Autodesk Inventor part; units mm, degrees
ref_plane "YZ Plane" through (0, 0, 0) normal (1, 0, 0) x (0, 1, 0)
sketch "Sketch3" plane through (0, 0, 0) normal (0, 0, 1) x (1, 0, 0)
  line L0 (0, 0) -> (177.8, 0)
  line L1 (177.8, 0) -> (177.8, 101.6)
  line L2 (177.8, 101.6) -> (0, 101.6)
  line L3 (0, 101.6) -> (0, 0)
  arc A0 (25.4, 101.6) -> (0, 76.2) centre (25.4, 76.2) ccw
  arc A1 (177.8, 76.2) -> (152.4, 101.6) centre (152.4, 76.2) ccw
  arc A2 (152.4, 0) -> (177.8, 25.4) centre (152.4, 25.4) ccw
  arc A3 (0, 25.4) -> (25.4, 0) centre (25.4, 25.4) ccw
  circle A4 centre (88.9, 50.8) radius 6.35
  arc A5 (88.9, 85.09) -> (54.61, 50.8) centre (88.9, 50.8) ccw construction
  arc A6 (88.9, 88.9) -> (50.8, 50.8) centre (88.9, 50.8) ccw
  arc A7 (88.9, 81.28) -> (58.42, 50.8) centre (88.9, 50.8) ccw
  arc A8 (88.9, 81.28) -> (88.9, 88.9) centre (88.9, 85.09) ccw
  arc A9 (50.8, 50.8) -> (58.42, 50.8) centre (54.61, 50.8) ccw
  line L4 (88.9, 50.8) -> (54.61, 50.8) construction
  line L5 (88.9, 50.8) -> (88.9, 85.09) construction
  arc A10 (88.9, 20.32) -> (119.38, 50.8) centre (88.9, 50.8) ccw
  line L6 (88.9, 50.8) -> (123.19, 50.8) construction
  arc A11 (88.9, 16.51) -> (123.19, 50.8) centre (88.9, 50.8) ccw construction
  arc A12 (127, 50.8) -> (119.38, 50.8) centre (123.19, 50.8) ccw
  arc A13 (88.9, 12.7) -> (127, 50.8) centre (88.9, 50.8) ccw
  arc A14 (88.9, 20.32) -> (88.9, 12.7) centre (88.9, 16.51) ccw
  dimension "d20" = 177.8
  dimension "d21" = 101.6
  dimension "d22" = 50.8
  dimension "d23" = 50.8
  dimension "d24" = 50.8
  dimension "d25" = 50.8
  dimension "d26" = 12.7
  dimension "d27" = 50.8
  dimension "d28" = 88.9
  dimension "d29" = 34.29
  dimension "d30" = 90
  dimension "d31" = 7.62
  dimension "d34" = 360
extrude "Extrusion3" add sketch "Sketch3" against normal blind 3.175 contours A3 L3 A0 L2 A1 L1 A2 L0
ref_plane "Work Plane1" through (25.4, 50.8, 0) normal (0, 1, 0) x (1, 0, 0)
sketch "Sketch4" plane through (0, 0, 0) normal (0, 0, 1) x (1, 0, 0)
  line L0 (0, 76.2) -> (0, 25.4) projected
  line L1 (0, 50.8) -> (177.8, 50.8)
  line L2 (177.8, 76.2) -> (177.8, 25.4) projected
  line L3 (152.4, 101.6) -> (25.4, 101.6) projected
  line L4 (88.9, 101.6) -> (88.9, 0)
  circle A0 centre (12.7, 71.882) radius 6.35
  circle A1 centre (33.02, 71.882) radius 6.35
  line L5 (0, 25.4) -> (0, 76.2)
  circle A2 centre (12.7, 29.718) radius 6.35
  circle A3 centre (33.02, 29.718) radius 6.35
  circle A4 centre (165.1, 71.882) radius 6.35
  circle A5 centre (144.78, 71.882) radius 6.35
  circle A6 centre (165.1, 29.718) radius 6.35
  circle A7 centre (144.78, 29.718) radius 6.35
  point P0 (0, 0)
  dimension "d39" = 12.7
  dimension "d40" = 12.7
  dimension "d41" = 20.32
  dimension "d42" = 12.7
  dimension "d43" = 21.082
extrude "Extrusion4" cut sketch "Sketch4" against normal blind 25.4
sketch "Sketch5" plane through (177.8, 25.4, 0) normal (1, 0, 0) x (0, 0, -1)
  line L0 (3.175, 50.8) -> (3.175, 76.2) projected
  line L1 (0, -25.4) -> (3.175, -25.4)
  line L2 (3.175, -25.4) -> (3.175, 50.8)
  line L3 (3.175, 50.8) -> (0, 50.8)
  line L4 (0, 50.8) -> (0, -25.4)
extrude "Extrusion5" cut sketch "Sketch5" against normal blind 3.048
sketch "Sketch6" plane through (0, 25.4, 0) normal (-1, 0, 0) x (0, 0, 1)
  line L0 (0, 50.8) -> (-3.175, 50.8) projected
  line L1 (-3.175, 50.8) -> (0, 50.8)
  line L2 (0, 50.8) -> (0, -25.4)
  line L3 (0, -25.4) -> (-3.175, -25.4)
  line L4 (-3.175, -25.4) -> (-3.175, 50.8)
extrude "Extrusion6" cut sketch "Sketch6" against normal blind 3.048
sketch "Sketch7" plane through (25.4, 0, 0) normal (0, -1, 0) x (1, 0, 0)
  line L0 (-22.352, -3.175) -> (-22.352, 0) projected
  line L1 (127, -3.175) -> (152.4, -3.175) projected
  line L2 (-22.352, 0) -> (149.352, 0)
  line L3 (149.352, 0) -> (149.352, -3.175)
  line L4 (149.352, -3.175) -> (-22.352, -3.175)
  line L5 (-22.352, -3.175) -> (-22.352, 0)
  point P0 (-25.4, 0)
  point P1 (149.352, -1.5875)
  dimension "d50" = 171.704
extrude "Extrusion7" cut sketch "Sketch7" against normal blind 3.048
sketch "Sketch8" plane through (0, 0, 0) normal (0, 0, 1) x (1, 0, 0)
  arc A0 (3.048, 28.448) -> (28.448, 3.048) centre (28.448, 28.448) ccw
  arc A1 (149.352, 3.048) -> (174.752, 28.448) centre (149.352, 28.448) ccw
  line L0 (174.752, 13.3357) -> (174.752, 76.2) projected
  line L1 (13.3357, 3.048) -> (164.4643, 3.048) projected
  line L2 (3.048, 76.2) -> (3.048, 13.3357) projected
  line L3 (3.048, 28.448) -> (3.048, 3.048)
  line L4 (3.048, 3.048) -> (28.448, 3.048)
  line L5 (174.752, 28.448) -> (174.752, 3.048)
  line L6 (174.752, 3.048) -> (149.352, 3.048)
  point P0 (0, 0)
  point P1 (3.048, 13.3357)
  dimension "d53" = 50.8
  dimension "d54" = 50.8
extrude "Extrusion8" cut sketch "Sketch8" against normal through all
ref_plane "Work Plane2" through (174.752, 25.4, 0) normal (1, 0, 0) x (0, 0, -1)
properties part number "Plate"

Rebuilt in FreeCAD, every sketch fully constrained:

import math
import FreeCAD as App
import Part
import Sketcher
from FreeCAD import Vector
Q = App.Units.Quantity


def add_polygon(sketch, points):
    """Adds a closed chain of lines whose ends are joined by coincident constraints."""
    first, n = sketch.GeometryCount, len(points)
    for a, b in zip(points, points[1:] + points[:1]):
        sketch.addGeometry(Part.LineSegment(App.Vector(*a, 0), App.Vector(*b, 0)), False)
    for i in range(n):
        sketch.addConstraint(Sketcher.Constraint("Coincident", first + i, 2, first + (i + 1) % n, 1))

doc = App.newDocument("Part")
body = doc.addObject("PartDesign::Body", "Body")

sketch1 = body.newObject("Sketcher::SketchObject", "Sketch")
sketch1.AttachmentSupport = (doc.getObject("XY_Plane"), [""])
sketch1.MapMode = "FlatFace"
sketch1.addGeometry([
    Part.ArcOfCircle(Part.Circle(Vector(25.4, 25.4, 0), Vector(0, 0, 1), 25.4), math.radians(180), math.radians(270)),
    Part.LineSegment(Vector(25.4, 0, 0), Vector(152.4, 0, 0)),
    Part.ArcOfCircle(Part.Circle(Vector(152.4, 25.4, 0), Vector(0, 0, 1), 25.4), math.radians(-90), math.radians(0)),
    Part.LineSegment(Vector(177.8, 25.4, 0), Vector(177.8, 76.2, 0)),
    Part.ArcOfCircle(Part.Circle(Vector(152.4, 76.2, 0), Vector(0, 0, 1), 25.4), math.radians(0), math.radians(90)),
    Part.LineSegment(Vector(152.4, 101.6, 0), Vector(25.4, 101.6, 0)),
    Part.ArcOfCircle(Part.Circle(Vector(25.4, 76.2, 0), Vector(0, 0, 1), 25.4), math.radians(90), math.radians(180)),
    Part.LineSegment(Vector(0, 76.2, 0), Vector(0, 25.4, 0)),
    Part.ArcOfCircle(Part.Circle(Vector(88.9, 16.51, 0), Vector(0, 0, 1), 3.81), math.radians(90), math.radians(270)),
    Part.ArcOfCircle(Part.Circle(Vector(88.9, 50.8, 0), Vector(0, 0, 1), 30.48), math.radians(-90), math.radians(0)),
    Part.ArcOfCircle(Part.Circle(Vector(123.19, 50.8, 0), Vector(0, 0, 1), 3.81), math.radians(0), math.radians(180)),
    Part.ArcOfCircle(Part.Circle(Vector(88.9, 50.8, 0), Vector(0, 0, 1), 38.1), math.radians(-90), math.radians(0)),
    Part.Circle(Vector(88.9, 50.8, 0), Vector(0, 0, 1), 6.35),
    Part.ArcOfCircle(Part.Circle(Vector(88.9, 50.8, 0), Vector(0, 0, 1), 38.1), math.radians(90), math.radians(180)),
    Part.ArcOfCircle(Part.Circle(Vector(88.9, 85.09, 0), Vector(0, 0, 1), 3.81), math.radians(-90), math.radians(90)),
    Part.ArcOfCircle(Part.Circle(Vector(88.9, 50.8, 0), Vector(0, 0, 1), 30.48), math.radians(90), math.radians(180)),
    Part.ArcOfCircle(Part.Circle(Vector(54.61, 50.8, 0), Vector(0, 0, 1), 3.81), math.radians(180), math.radians(360)),
], False)
sketch1.addConstraint([
    Sketcher.Constraint("Tangent", 0, 2, 1, 1),
    Sketcher.Constraint("Tangent", 1, 2, 2, 1),
    Sketcher.Constraint("Tangent", 2, 2, 3, 1),
    Sketcher.Constraint("Tangent", 3, 2, 4, 1),
    Sketcher.Constraint("Tangent", 4, 2, 5, 1),
    Sketcher.Constraint("Tangent", 5, 2, 6, 1),
    Sketcher.Constraint("Tangent", 6, 2, 7, 1),
    Sketcher.Constraint("Tangent", 7, 2, 0, 1),
    Sketcher.Constraint("Tangent", 8, 1, 9, 1),
    Sketcher.Constraint("Tangent", 9, 2, 10, 2),
    Sketcher.Constraint("Tangent", 10, 1, 11, 2),
    Sketcher.Constraint("Tangent", 11, 1, 8, 2),
    Sketcher.Constraint("Tangent", 13, 1, 14, 2),
    Sketcher.Constraint("Tangent", 14, 1, 15, 1),
    Sketcher.Constraint("Tangent", 15, 2, 16, 2),
    Sketcher.Constraint("Tangent", 16, 1, 13, 2),
    Sketcher.Constraint("Horizontal", 1),
    Sketcher.Constraint("Vertical", 3),
    Sketcher.Constraint("Horizontal", 5),
    Sketcher.Constraint("Vertical", 7),
    Sketcher.Constraint("Coincident", 11, 3, 9, 3),
    Sketcher.Constraint("Coincident", 12, 3, 9, 3),
    Sketcher.Constraint("Coincident", 13, 3, 9, 3),
    Sketcher.Constraint("Coincident", 15, 3, 9, 3),
    Sketcher.Constraint("Equal", 0, 2),
    Sketcher.Constraint("Equal", 2, 4),
    Sketcher.Constraint("Equal", 4, 6),
    Sketcher.Constraint("Equal", 11, 13),
    Sketcher.Constraint("Equal", 10, 14),
    Sketcher.Constraint("PointOnObject", 0, 2, -1),
    Sketcher.Constraint("PointOnObject", 6, 2, -2),
    Sketcher.Constraint("Horizontal", 9, 3, 10, 3),
    Sketcher.Constraint("Horizontal", 15, 3, 16, 3),
    Sketcher.Constraint("Vertical", 8, 3, 9, 3),
    Sketcher.Constraint("Vertical", 13, 3, 14, 3),
    Sketcher.Constraint("Radius", 0, Q("1 in")),
    Sketcher.Constraint("Diameter", 12, Q("0.5 in")),
    Sketcher.Constraint("DistanceY", 3, 1, 3, 2, Q("2 in")),
    Sketcher.Constraint("Radius", 8, Q("0.15 in")),
    Sketcher.Constraint("DistanceY", -1, 1, 9, 3, Q("2 in")),
    Sketcher.Constraint("DistanceX", -1, 1, 2, 2, Q("7 in")),
    Sketcher.Constraint("DistanceX", -1, 1, 16, 1, Q("2 in")),
    Sketcher.Constraint("DistanceX", -1, 1, 8, 3, Q("3.5 in")),
])
pad1 = body.newObject("PartDesign::Pad", "Pad")
pad1.Profile = sketch1
pad1.Length = Q("0.125 in")
pad1.Reversed = True

sketch2 = body.newObject("Sketcher::SketchObject", "Sketch001")
sketch2.AttachmentSupport = (doc.getObject("XY_Plane"), [""])
sketch2.MapMode = "FlatFace"
sketch2.addGeometry([
    Part.Circle(Vector(12.7, 71.882, 0), Vector(0, 0, 1), 6.35),
    Part.Circle(Vector(33.02, 71.882, 0), Vector(0, 0, 1), 6.35),
    Part.Circle(Vector(12.7, 29.718, 0), Vector(0, 0, 1), 6.35),
    Part.Circle(Vector(33.02, 29.718, 0), Vector(0, 0, 1), 6.35),
    Part.Circle(Vector(165.1, 71.882, 0), Vector(0, 0, 1), 6.35),
    Part.Circle(Vector(144.78, 71.882, 0), Vector(0, 0, 1), 6.35),
    Part.Circle(Vector(165.1, 29.718, 0), Vector(0, 0, 1), 6.35),
    Part.Circle(Vector(144.78, 29.718, 0), Vector(0, 0, 1), 6.35),
], False)
sketch2.addConstraint([
    Sketcher.Constraint("Equal", 0, 1),
    Sketcher.Constraint("Equal", 1, 2),
    Sketcher.Constraint("Equal", 2, 3),
    Sketcher.Constraint("Equal", 3, 4),
    Sketcher.Constraint("Equal", 4, 5),
    Sketcher.Constraint("Equal", 5, 6),
    Sketcher.Constraint("Equal", 6, 7),
    Sketcher.Constraint("Horizontal", 0, 3, 1, 3),
    Sketcher.Constraint("Horizontal", 2, 3, 3, 3),
    Sketcher.Constraint("Horizontal", 1, 3, 4, 3),
    Sketcher.Constraint("Horizontal", 4, 3, 5, 3),
    Sketcher.Constraint("Horizontal", 3, 3, 6, 3),
    Sketcher.Constraint("Horizontal", 6, 3, 7, 3),
    Sketcher.Constraint("Vertical", 0, 3, 2, 3),
    Sketcher.Constraint("Vertical", 1, 3, 3, 3),
    Sketcher.Constraint("Vertical", 4, 3, 6, 3),
    Sketcher.Constraint("Vertical", 5, 3, 7, 3),
    Sketcher.Constraint("Diameter", 0, Q("0.5 in")),
    Sketcher.Constraint("DistanceX", -1, 1, 0, 3, Q("0.5 in")),
    Sketcher.Constraint("DistanceX", 0, 3, 1, 3, Q("0.8 in")),
    Sketcher.Constraint("DistanceX", 5, 3, 4, 3, Q("0.8 in")),
    Sketcher.Constraint("DistanceX", 0, 3, 4, 3, Q("6 in")),
    Sketcher.Constraint("DistanceY", -1, 1, 0, 3, Q("2.83 in")),
    Sketcher.Constraint("DistanceY", -1, 1, 2, 3, Q("1.17 in")),
])
pocket1 = body.newObject("PartDesign::Pocket", "Pocket")
pocket1.Profile = sketch2
pocket1.Length = Q("1 in")

sketch3 = body.newObject("Sketcher::SketchObject", "Sketch002")
sketch3.AttachmentSupport = (doc.getObject("YZ_Plane"), [""])
sketch3.MapMode = "FlatFace"
sketch3.AttachmentOffset = App.Placement(Vector(0, 0, 7 * 25.4), App.Rotation())
add_polygon(sketch3, [(76.2, 0), (0, 0), (0, -3.175), (76.2, -3.175)])
sketch3.addConstraint([
    Sketcher.Constraint("Horizontal", 0),
    Sketcher.Constraint("Vertical", 1),
    Sketcher.Constraint("Horizontal", 2),
    Sketcher.Constraint("Vertical", 3),
    Sketcher.Constraint("Coincident", 0, 2, -1, 1),
    Sketcher.Constraint("DistanceX", 0, 2, 0, 1, Q("3 in")),
    Sketcher.Constraint("DistanceY", 1, 2, 1, 1, Q("0.125 in")),
])
pocket2 = body.newObject("PartDesign::Pocket", "Pocket001")
pocket2.Profile = sketch3
pocket2.Length = Q("0.12 in")

sketch4 = body.newObject("Sketcher::SketchObject", "Sketch003")
sketch4.AttachmentSupport = (doc.getObject("YZ_Plane"), [""])
sketch4.MapMode = "FlatFace"
add_polygon(sketch4, [(0, 0), (76.2, 0), (76.2, -3.175), (0, -3.175)])
sketch4.addConstraint([
    Sketcher.Constraint("Horizontal", 0),
    Sketcher.Constraint("Vertical", 1),
    Sketcher.Constraint("Horizontal", 2),
    Sketcher.Constraint("Vertical", 3),
    Sketcher.Constraint("Coincident", 3, 2, -1, 1),
    Sketcher.Constraint("DistanceX", 0, 1, 0, 2, Q("3 in")),
    Sketcher.Constraint("DistanceY", 1, 2, 1, 1, Q("0.125 in")),
])
pocket3 = body.newObject("PartDesign::Pocket", "Pocket002")
pocket3.Profile = sketch4
pocket3.Length = Q("0.12 in")
pocket3.Reversed = True

sketch5 = body.newObject("Sketcher::SketchObject", "Sketch004")
sketch5.AttachmentSupport = (doc.getObject("XZ_Plane"), [""])
sketch5.MapMode = "FlatFace"
add_polygon(sketch5, [(3.048, 0), (3.048, -3.175), (174.752, -3.175), (174.752, 0)])
sketch5.addConstraint([
    Sketcher.Constraint("Vertical", 0),
    Sketcher.Constraint("Horizontal", 1),
    Sketcher.Constraint("Vertical", 2),
    Sketcher.Constraint("Horizontal", 3),
    Sketcher.Constraint("PointOnObject", 2, 2, -1),
    Sketcher.Constraint("DistanceX", 1, 1, 1, 2, Q("6.76 in")),
    Sketcher.Constraint("DistanceY", 0, 2, 0, 1, Q("0.125 in")),
    Sketcher.Constraint("DistanceX", -1, 1, 0, 2, Q("0.12 in")),
])
pocket4 = body.newObject("PartDesign::Pocket", "Pocket003")
pocket4.Profile = sketch5
pocket4.Length = Q("0.12 in")

sketch6 = body.newObject("Sketcher::SketchObject", "Sketch005")
sketch6.AttachmentSupport = (doc.getObject("XY_Plane"), [""])
sketch6.MapMode = "FlatFace"
sketch6.addGeometry([
    Part.ArcOfCircle(Part.Circle(Vector(149.352, 28.448, 0), Vector(0, 0, 1), 25.4), math.radians(-90), math.radians(0)),
    Part.LineSegment(Vector(149.352, 3.048, 0), Vector(174.752, 3.048, 0)),
    Part.LineSegment(Vector(174.752, 3.048, 0), Vector(174.752, 28.448, 0)),
    Part.ArcOfCircle(Part.Circle(Vector(28.448, 28.448, 0), Vector(0, 0, 1), 25.4), math.radians(180), math.radians(270)),
    Part.LineSegment(Vector(3.048, 28.448, 0), Vector(3.048, 3.048, 0)),
    Part.LineSegment(Vector(3.048, 3.048, 0), Vector(28.448, 3.048, 0)),
], False)
sketch6.addConstraint([
    Sketcher.Constraint("Tangent", 0, 1, 1, 1),
    Sketcher.Constraint("Coincident", 1, 2, 2, 1),
    Sketcher.Constraint("Tangent", 2, 2, 0, 2),
    Sketcher.Constraint("Tangent", 3, 1, 4, 1),
    Sketcher.Constraint("Coincident", 4, 2, 5, 1),
    Sketcher.Constraint("Tangent", 5, 2, 3, 2),
    Sketcher.Constraint("Horizontal", 1),
    Sketcher.Constraint("Vertical", 2),
    Sketcher.Constraint("Vertical", 4),
    Sketcher.Constraint("Horizontal", 5),
    Sketcher.Constraint("Equal", 0, 3),
    Sketcher.Constraint("Horizontal", 0, 3, 3, 3),
    Sketcher.Constraint("Radius", 0, Q("1 in")),
    Sketcher.Constraint("DistanceX", -1, 1, 0, 3, Q("5.88 in")),
    Sketcher.Constraint("DistanceY", -1, 1, 0, 3, Q("1.12 in")),
    Sketcher.Constraint("DistanceX", -1, 1, 3, 3, Q("1.12 in")),
])
pocket5 = body.newObject("PartDesign::Pocket", "Pocket004")
pocket5.Profile = sketch6
pocket5.Type = "ThroughAll"

doc.recompute()
